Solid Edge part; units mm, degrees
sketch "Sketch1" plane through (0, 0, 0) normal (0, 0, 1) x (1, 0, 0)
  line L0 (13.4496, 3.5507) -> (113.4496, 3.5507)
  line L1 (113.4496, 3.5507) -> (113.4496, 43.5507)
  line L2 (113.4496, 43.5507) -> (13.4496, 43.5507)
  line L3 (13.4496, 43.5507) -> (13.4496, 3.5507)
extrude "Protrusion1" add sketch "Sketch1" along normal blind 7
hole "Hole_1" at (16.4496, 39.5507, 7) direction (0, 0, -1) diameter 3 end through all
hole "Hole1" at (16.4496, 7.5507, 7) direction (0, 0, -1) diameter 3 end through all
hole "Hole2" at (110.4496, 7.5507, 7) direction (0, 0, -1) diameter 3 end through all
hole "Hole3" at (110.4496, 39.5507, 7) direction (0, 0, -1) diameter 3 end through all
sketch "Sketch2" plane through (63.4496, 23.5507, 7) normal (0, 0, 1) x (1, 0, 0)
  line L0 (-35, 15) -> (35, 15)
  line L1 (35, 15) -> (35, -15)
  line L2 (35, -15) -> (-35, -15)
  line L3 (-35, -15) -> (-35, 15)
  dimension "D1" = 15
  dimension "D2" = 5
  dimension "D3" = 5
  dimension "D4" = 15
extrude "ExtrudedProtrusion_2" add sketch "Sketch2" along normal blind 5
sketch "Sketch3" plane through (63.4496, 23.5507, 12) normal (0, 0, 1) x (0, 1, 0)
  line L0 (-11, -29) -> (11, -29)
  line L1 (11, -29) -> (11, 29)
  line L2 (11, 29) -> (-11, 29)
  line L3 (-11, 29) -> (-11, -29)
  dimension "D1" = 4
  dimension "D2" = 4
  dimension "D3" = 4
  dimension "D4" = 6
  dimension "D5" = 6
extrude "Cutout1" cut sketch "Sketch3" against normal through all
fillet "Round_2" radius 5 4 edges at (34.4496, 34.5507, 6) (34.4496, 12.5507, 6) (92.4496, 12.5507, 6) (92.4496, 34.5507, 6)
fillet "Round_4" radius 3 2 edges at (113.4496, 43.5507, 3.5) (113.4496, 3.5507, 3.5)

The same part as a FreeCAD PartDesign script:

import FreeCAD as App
import Part
import Sketcher
from FreeCAD import Vector
Q = App.Units.Quantity


def edges_at(feature, points):
    """Names of the edges that pass closest to the given points."""
    edges = feature.Shape.Edges
    near = lambda p: min(range(len(edges)), key=lambda i: edges[i].distToShape(Part.Vertex(*p))[0])
    return sorted({f"Edge{near(p) + 1}" for p in points})

doc = App.newDocument("Part")
body = doc.addObject("PartDesign::Body", "Body")

sketch1 = doc.addObject("Sketcher::SketchObject", "Sketch")
body.addObject(sketch1)
sketch1.AttachmentSupport = (doc.XY_Plane, [""])
sketch1.MapMode = "FlatFace"
sketch1.addGeometry([
    Part.LineSegment(Vector(13, 44, 0), Vector(13, 4, 0)),
    Part.LineSegment(Vector(13, 4, 0), Vector(113, 4, 0)),
    Part.LineSegment(Vector(113, 4, 0), Vector(113, 44, 0)),
    Part.LineSegment(Vector(113, 44, 0), Vector(13, 44, 0)),
], False)
sketch1.addConstraint([
    Sketcher.Constraint("Coincident", 0, 2, 1, 1),
    Sketcher.Constraint("Coincident", 1, 2, 2, 1),
    Sketcher.Constraint("Coincident", 2, 2, 3, 1),
    Sketcher.Constraint("Coincident", 3, 2, 0, 1),
    Sketcher.Constraint("Vertical", 0),
    Sketcher.Constraint("Horizontal", 1),
    Sketcher.Constraint("Vertical", 2),
    Sketcher.Constraint("Horizontal", 3),
    Sketcher.Constraint("DistanceX", 1, 1, 1, 2, Q("100 mm")),
    Sketcher.Constraint("DistanceY", 0, 2, 0, 1, Q("40 mm")),
    Sketcher.Constraint("DistanceX", -1, 1, 0, 2, Q("13.4496 mm")),
    Sketcher.Constraint("DistanceY", -1, 1, 0, 2, Q("3.5507 mm")),
])
pad1 = doc.addObject("PartDesign::Pad", "Pad")
body.addObject(pad1)
pad1.Profile = sketch1
pad1.Length = 7

sketch2 = doc.addObject("Sketcher::SketchObject", "Sketch001")
body.addObject(sketch2)
sketch2.AttachmentSupport = (doc.XY_Plane, [""])
sketch2.MapMode = "FlatFace"
sketch2.AttachmentOffset = App.Placement(Vector(0, 0, 7), App.Rotation())
sketch2.addGeometry(Part.Circle(Vector(16.4, 39.6, 0), Vector(0, 0, 1), 1.5), False)
sketch2.addConstraint([
    Sketcher.Constraint("Diameter", 0, Q("3 mm")),
    Sketcher.Constraint("DistanceX", -1, 1, 0, 3, Q("16.4496 mm")),
    Sketcher.Constraint("DistanceY", -1, 1, 0, 3, Q("39.5507 mm")),
])
doc.recompute()
hole = doc.addObject("PartDesign::Hole", "Hole")
body.addObject(hole)
hole.Profile = sketch2
hole.ThreadType = "None"
hole.Diameter = 3
hole.DepthType = "ThroughAll"

sketch3 = doc.addObject("Sketcher::SketchObject", "Sketch002")
body.addObject(sketch3)
sketch3.AttachmentSupport = (doc.XY_Plane, [""])
sketch3.MapMode = "FlatFace"
sketch3.AttachmentOffset = App.Placement(Vector(0, 0, 7), App.Rotation())
sketch3.addGeometry(Part.Circle(Vector(16.4, 7.6, 0), Vector(0, 0, 1), 1.5), False)
sketch3.addConstraint([
    Sketcher.Constraint("Diameter", 0, Q("3 mm")),
    Sketcher.Constraint("DistanceX", -1, 1, 0, 3, Q("16.4496 mm")),
    Sketcher.Constraint("DistanceY", -1, 1, 0, 3, Q("7.5507 mm")),
])
doc.recompute()
hole2 = doc.addObject("PartDesign::Hole", "Hole001")
body.addObject(hole2)
hole2.Profile = sketch3
hole2.ThreadType = "None"
hole2.Diameter = 3
hole2.DepthType = "ThroughAll"

sketch4 = doc.addObject("Sketcher::SketchObject", "Sketch003")
body.addObject(sketch4)
sketch4.AttachmentSupport = (doc.XY_Plane, [""])
sketch4.MapMode = "FlatFace"
sketch4.AttachmentOffset = App.Placement(Vector(0, 0, 7), App.Rotation())
sketch4.addGeometry(Part.Circle(Vector(110.4, 7.6, 0), Vector(0, 0, 1), 1.5), False)
sketch4.addConstraint([
    Sketcher.Constraint("Diameter", 0, Q("3 mm")),
    Sketcher.Constraint("DistanceX", -1, 1, 0, 3, Q("110.4496 mm")),
    Sketcher.Constraint("DistanceY", -1, 1, 0, 3, Q("7.5507 mm")),
])
doc.recompute()
hole3 = doc.addObject("PartDesign::Hole", "Hole002")
body.addObject(hole3)
hole3.Profile = sketch4
hole3.ThreadType = "None"
hole3.Diameter = 3
hole3.DepthType = "ThroughAll"

sketch5 = doc.addObject("Sketcher::SketchObject", "Sketch004")
body.addObject(sketch5)
sketch5.AttachmentSupport = (doc.XY_Plane, [""])
sketch5.MapMode = "FlatFace"
sketch5.AttachmentOffset = App.Placement(Vector(0, 0, 7), App.Rotation())
sketch5.addGeometry(Part.Circle(Vector(110.4, 39.6, 0), Vector(0, 0, 1), 1.5), False)
sketch5.addConstraint([
    Sketcher.Constraint("Diameter", 0, Q("3 mm")),
    Sketcher.Constraint("DistanceX", -1, 1, 0, 3, Q("110.4496 mm")),
    Sketcher.Constraint("DistanceY", -1, 1, 0, 3, Q("39.5507 mm")),
])
doc.recompute()
hole4 = doc.addObject("PartDesign::Hole", "Hole003")
body.addObject(hole4)
hole4.Profile = sketch5
hole4.ThreadType = "None"
hole4.Diameter = 3
hole4.DepthType = "ThroughAll"

sketch6 = doc.addObject("Sketcher::SketchObject", "Sketch005")
body.addObject(sketch6)
sketch6.AttachmentSupport = (doc.XY_Plane, [""])
sketch6.MapMode = "FlatFace"
sketch6.AttachmentOffset = App.Placement(Vector(0, 0, 7), App.Rotation())
sketch6.addGeometry([
    Part.LineSegment(Vector(98, 39, 0), Vector(28, 39, 0)),
    Part.LineSegment(Vector(28, 39, 0), Vector(28, 9, 0)),
    Part.LineSegment(Vector(28, 9, 0), Vector(98, 9, 0)),
    Part.LineSegment(Vector(98, 9, 0), Vector(98, 39, 0)),
], False)
sketch6.addConstraint([
    Sketcher.Constraint("Coincident", 0, 2, 1, 1),
    Sketcher.Constraint("Coincident", 1, 2, 2, 1),
    Sketcher.Constraint("Coincident", 2, 2, 3, 1),
    Sketcher.Constraint("Coincident", 3, 2, 0, 1),
    Sketcher.Constraint("Horizontal", 0),
    Sketcher.Constraint("Vertical", 1),
    Sketcher.Constraint("Horizontal", 2),
    Sketcher.Constraint("Vertical", 3),
    Sketcher.Constraint("DistanceX", 0, 2, 0, 1, Q("70 mm")),
    Sketcher.Constraint("DistanceY", 1, 2, 1, 1, Q("30 mm")),
    Sketcher.Constraint("DistanceX", -1, 1, 0, 2, Q("28.4496 mm")),
    Sketcher.Constraint("DistanceY", -1, 1, 0, 2, Q("38.5507 mm")),
])
pad2 = doc.addObject("PartDesign::Pad", "Pad001")
body.addObject(pad2)
pad2.Profile = sketch6
pad2.Length = 5

sketch7 = doc.addObject("Sketcher::SketchObject", "Sketch006")
body.addObject(sketch7)
sketch7.AttachmentSupport = (doc.XY_Plane, [""])
sketch7.MapMode = "FlatFace"
sketch7.AttachmentOffset = App.Placement(Vector(0, 0, 12), App.Rotation())
sketch7.addGeometry([
    Part.LineSegment(Vector(34, 13, 0), Vector(92, 13, 0)),
    Part.LineSegment(Vector(92, 13, 0), Vector(92, 35, 0)),
    Part.LineSegment(Vector(92, 35, 0), Vector(34, 35, 0)),
    Part.LineSegment(Vector(34, 35, 0), Vector(34, 13, 0)),
], False)
sketch7.addConstraint([
    Sketcher.Constraint("Coincident", 0, 2, 1, 1),
    Sketcher.Constraint("Coincident", 1, 2, 2, 1),
    Sketcher.Constraint("Coincident", 2, 2, 3, 1),
    Sketcher.Constraint("Coincident", 3, 2, 0, 1),
    Sketcher.Constraint("Horizontal", 0),
    Sketcher.Constraint("Vertical", 1),
    Sketcher.Constraint("Horizontal", 2),
    Sketcher.Constraint("Vertical", 3),
    Sketcher.Constraint("DistanceX", 0, 1, 0, 2, Q("58 mm")),
    Sketcher.Constraint("DistanceY", 1, 1, 1, 2, Q("22 mm")),
    Sketcher.Constraint("DistanceX", -1, 1, 0, 2, Q("92.4496 mm")),
    Sketcher.Constraint("DistanceY", -1, 1, 0, 2, Q("12.5507 mm")),
])
pocket1 = doc.addObject("PartDesign::Pocket", "Pocket")
body.addObject(pocket1)
pocket1.Profile = sketch7
pocket1.Type = "ThroughAll"
doc.recompute()

fillet = doc.addObject("PartDesign::Fillet", "Fillet")
body.addObject(fillet)
fillet.Base = (pocket1, edges_at(pocket1, [
    (34.45, 34.551, 6),
    (34.45, 12.551, 6),
    (92.45, 12.551, 6),
    (92.45, 34.551, 6),
]))
fillet.Radius = 5
doc.recompute()

fillet2 = doc.addObject("PartDesign::Fillet", "Fillet001")
body.addObject(fillet2)
fillet2.Base = (fillet, edges_at(fillet, [(113.45, 43.551, 3.5), (113.45, 3.551, 3.5)]))
fillet2.Radius = 3

doc.recompute()
